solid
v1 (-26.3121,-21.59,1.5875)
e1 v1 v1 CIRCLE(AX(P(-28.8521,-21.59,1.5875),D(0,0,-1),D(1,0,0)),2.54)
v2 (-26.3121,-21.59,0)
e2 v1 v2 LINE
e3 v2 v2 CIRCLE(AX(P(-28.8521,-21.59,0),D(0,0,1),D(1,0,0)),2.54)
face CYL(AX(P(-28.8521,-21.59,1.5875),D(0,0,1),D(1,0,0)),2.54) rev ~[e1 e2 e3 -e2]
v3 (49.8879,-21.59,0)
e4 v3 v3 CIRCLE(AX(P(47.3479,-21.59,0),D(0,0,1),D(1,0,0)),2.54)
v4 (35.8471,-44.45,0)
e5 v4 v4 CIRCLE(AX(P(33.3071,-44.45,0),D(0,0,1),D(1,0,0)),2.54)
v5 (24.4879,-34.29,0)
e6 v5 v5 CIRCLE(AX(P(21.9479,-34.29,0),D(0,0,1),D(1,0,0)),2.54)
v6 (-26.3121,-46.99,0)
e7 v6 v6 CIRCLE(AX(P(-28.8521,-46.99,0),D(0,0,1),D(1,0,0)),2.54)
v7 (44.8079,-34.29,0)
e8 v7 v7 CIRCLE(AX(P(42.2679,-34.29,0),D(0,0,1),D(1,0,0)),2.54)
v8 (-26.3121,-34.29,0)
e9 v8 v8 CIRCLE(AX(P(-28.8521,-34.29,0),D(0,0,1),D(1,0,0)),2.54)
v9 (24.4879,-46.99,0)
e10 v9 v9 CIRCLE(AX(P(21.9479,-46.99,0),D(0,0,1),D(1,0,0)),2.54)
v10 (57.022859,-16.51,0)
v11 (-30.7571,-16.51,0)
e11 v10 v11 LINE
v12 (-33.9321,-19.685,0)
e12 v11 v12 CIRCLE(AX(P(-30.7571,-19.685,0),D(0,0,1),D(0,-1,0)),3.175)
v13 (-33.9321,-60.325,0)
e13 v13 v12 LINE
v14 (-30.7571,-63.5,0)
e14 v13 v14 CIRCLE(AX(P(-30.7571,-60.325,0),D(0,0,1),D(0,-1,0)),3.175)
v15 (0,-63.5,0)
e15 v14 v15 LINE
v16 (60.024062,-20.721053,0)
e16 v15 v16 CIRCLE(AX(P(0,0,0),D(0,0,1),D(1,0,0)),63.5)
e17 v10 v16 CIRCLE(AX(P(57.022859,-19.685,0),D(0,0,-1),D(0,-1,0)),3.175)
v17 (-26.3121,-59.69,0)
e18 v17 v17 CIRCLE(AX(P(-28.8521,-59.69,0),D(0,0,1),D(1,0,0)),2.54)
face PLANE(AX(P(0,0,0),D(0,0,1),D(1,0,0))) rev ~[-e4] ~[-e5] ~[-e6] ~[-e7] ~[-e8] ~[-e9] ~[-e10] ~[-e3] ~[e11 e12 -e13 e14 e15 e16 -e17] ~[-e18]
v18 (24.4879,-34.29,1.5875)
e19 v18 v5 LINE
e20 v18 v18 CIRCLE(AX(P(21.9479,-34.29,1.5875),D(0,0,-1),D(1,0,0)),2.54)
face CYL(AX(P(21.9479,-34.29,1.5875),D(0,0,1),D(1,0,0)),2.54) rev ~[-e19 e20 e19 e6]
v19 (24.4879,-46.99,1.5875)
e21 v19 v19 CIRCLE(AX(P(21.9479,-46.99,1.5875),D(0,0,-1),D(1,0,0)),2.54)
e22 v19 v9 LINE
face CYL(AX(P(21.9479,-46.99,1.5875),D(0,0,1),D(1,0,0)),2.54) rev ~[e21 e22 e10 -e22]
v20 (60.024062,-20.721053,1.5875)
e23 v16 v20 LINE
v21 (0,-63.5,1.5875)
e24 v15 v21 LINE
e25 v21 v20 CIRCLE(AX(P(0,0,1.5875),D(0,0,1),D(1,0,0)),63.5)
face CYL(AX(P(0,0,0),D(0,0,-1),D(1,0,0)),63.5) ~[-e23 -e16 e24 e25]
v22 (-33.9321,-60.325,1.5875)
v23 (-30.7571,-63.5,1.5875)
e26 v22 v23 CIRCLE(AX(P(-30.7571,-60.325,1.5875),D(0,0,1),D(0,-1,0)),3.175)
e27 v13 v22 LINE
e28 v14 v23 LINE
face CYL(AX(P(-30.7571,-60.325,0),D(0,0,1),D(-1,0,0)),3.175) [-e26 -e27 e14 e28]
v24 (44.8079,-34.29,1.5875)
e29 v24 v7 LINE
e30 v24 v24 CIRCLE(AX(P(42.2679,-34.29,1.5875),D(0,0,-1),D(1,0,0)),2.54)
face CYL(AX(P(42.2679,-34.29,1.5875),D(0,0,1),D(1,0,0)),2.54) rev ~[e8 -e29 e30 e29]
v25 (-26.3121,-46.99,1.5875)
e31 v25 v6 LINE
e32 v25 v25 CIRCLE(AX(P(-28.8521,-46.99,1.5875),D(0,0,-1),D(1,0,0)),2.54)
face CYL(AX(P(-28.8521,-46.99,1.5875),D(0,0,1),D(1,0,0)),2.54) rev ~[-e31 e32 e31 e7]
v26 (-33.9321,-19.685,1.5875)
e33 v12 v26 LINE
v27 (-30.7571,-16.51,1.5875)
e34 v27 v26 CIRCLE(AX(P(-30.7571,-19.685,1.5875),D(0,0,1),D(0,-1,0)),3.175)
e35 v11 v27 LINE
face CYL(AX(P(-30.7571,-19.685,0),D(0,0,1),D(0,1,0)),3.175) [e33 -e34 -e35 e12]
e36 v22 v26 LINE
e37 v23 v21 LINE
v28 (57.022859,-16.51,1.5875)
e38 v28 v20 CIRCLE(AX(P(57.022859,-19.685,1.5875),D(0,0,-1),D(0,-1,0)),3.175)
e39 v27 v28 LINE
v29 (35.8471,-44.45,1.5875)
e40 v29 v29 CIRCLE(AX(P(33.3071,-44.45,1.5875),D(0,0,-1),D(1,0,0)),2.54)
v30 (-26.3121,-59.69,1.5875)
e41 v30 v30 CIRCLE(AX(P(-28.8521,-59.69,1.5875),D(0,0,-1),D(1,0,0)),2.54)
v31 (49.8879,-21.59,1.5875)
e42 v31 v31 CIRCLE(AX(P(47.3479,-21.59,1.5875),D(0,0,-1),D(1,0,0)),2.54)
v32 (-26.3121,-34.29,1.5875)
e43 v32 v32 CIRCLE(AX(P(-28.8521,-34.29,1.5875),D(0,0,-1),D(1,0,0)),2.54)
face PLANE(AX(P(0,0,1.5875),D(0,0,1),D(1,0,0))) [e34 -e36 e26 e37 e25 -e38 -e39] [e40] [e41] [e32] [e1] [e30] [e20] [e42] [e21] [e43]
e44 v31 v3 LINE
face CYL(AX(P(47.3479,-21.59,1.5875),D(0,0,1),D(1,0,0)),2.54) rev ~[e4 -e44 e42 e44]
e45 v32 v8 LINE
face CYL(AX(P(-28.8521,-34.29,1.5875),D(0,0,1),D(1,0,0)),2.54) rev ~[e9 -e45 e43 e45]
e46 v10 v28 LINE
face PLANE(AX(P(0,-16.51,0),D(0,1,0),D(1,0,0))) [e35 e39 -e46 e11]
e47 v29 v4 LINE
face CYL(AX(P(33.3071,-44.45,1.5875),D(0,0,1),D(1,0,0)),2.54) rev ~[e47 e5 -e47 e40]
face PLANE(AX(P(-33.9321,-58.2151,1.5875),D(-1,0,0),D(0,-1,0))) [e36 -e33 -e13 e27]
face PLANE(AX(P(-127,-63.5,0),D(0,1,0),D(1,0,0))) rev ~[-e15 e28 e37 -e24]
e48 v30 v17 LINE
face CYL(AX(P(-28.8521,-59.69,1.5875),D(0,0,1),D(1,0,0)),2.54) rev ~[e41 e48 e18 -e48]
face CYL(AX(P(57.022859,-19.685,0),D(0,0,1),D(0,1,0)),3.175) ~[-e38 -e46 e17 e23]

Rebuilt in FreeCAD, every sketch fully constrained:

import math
import FreeCAD as App
import Part
import Sketcher

V = App.Vector
Q = App.Units.Quantity


def edges_at(feature, points):
    """Names of the edges that pass closest to the given points."""
    edges = feature.Shape.Edges
    near = lambda p: min(range(len(edges)), key=lambda i: edges[i].distToShape(Part.Vertex(*p))[0])
    return sorted({f"Edge{near(p) + 1}" for p in points})


def add_polygon(sketch, points):
    """Adds a closed chain of lines whose ends are joined by coincident constraints."""
    first, n = sketch.GeometryCount, len(points)
    for a, b in zip(points, points[1:] + points[:1]):
        sketch.addGeometry(Part.LineSegment(App.Vector(*a, 0), App.Vector(*b, 0)), False)
    for i in range(n):
        sketch.addConstraint(Sketcher.Constraint("Coincident", first + i, 2, first + (i + 1) % n, 1))

doc = App.newDocument("Part")
params = doc.addObject("Spreadsheet::Sheet", "Params")
for row, (alias, value) in enumerate([
    ("sketch1_radius", "2.5 in"),
    ("sketch1_width", "5 in"),
    ("pad1_length", "0.0625 in"),
    ("pocket1_length", "0.0625 in"),
    ("fillet_radius", "0.125 in"),
    ("fillet2_radius", "0.125 in"),
    ("pocket2_length", "0.0625 in"),
    ("sketch4_diameter", "0.2 in"),
    ("pocket3_length", "0.2 in"),
    ("fillet3_radius", "0.125 in"),
], start=1):
    params.set(f"A{row}", alias)
    params.set(f"B{row}", "=" + value)
    params.setAlias(f"B{row}", alias)

body = doc.addObject("PartDesign::Body", "Body")

# Sketch on XY plane
sketch1 = body.newObject("Sketcher::SketchObject", "Sketch")
sketch1.AttachmentSupport = (doc.getObject("XY_Plane"), [""])
sketch1.MapMode = "FlatFace"
sketch1.addGeometry(Part.LineSegment(V(61, -17, 0), V(-127, -17, 0)), False)
sketch1.addGeometry(Part.LineSegment(V(-127, -17, 0), V(-127, -64, 0)), False)
sketch1.addGeometry(Part.LineSegment(V(-127, -64, 0), V(0, -64, 0)), False)
sketch1.addGeometry(Part.ArcOfCircle(Part.Circle(V(0, 0, 0), V(0, 0, 1), 64), math.radians(-90), math.radians(-15)), False)
sketch1.addConstraint(Sketcher.Constraint("Coincident", 0, 2, 1, 1))
sketch1.addConstraint(Sketcher.Constraint("Coincident", 1, 2, 2, 1))
sketch1.addConstraint(Sketcher.Constraint("Tangent", 2, 2, 3, 1))
sketch1.addConstraint(Sketcher.Constraint("Coincident", 3, 2, 0, 1))
sketch1.addConstraint(Sketcher.Constraint("Horizontal", 0))
sketch1.addConstraint(Sketcher.Constraint("Vertical", 1))
sketch1.addConstraint(Sketcher.Constraint("Horizontal", 2))
sketch1.addConstraint(Sketcher.Constraint("Coincident", 3, 3, -1, 1))
sketch1.addConstraint(Sketcher.Constraint("Radius", 3, Q("2.5 in")))
sketch1.addConstraint(Sketcher.Constraint("DistanceX", 2, 1, 2, 2, Q("5 in")))
sketch1.addConstraint(Sketcher.Constraint("DistanceY", 0, 2, -1, 1, Q("0.65 in")))
sketch1.setExpression("Constraints[8]", "Params.sketch1_radius")
sketch1.setExpression("Constraints[9]", "Params.sketch1_width")
pad1 = body.newObject("PartDesign::Pad", "Pad")
pad1.Profile = sketch1
pad1.setExpression("Length", "Params.pad1_length")

# Sketch on XY plane
sketch2 = body.newObject("Sketcher::SketchObject", "Sketch001")
sketch2.AttachmentSupport = (doc.getObject("XY_Plane"), [""])
sketch2.MapMode = "FlatFace"
sketch2.AttachmentOffset = App.Placement(V(0, 0, 0.0625 * 25.4), App.Rotation())
add_polygon(sketch2, [(-59, -68), (-59, -12), (-136, -12), (-136, -68)])  # lines 0-3
sketch2.addConstraint(Sketcher.Constraint("Vertical", 0))
sketch2.addConstraint(Sketcher.Constraint("Horizontal", 1))
sketch2.addConstraint(Sketcher.Constraint("Vertical", 2))
sketch2.addConstraint(Sketcher.Constraint("Horizontal", 3))
sketch2.addConstraint(Sketcher.Constraint("DistanceY", 0, 1, 0, 2, Q("2.2111 in")))
sketch2.addConstraint(Sketcher.Constraint("DistanceX", 1, 2, 1, 1, Q("77.0467 mm")))
sketch2.addConstraint(Sketcher.Constraint("DistanceX", 0, 2, -1, 1, Q("59.334 mm")))
sketch2.addConstraint(Sketcher.Constraint("DistanceY", 0, 2, -1, 1, Q("11.9346 mm")))
pocket1 = body.newObject("PartDesign::Pocket", "Pocket")
pocket1.Profile = sketch2
pocket1.setExpression("Length", "Params.pocket1_length")
doc.recompute()

fillet = body.newObject("PartDesign::Fillet", "Fillet")
fillet.Base = (pocket1, edges_at(pocket1, [(61.316, -16.51, 0.794)]))
fillet.setExpression("Radius", "Params.fillet_radius")
doc.recompute()

fillet2 = body.newObject("PartDesign::Fillet", "Fillet001")
fillet2.Base = (fillet, edges_at(fillet, [(-59.334, -16.51, 0.794)]))
fillet2.setExpression("Radius", "Params.fillet2_radius")

# Sketch on XY plane
sketch3 = body.newObject("Sketcher::SketchObject", "Sketch002")
sketch3.AttachmentSupport = (doc.getObject("XY_Plane"), [""])
sketch3.MapMode = "FlatFace"
sketch3.AttachmentOffset = App.Placement(V(0, 0, 0.0625 * 25.4), App.Rotation())
add_polygon(sketch3, [(-34, -67), (-34, -13), (-59, -13), (-59, -67)])  # lines 0-3
sketch3.addConstraint(Sketcher.Constraint("Vertical", 0))
sketch3.addConstraint(Sketcher.Constraint("Horizontal", 1))
sketch3.addConstraint(Sketcher.Constraint("Vertical", 2))
sketch3.addConstraint(Sketcher.Constraint("Horizontal", 3))
sketch3.addConstraint(Sketcher.Constraint("DistanceX", 1, 2, 1, 1, Q("25.4018 mm")))
sketch3.addConstraint(Sketcher.Constraint("DistanceY", 0, 1, 0, 2, Q("53.996 mm")))
sketch3.addConstraint(Sketcher.Constraint("DistanceX", 0, 2, -1, 1, Q("1.3359 in")))
sketch3.addConstraint(Sketcher.Constraint("DistanceY", 2, 2, -1, 1, Q("2.6503 in")))
pocket2 = body.newObject("PartDesign::Pocket", "Pocket001")
pocket2.Profile = sketch3
pocket2.setExpression("Length", "Params.pocket2_length")

# Sketch on XY plane
sketch4 = body.newObject("Sketcher::SketchObject", "Sketch003")
sketch4.AttachmentSupport = (doc.getObject("XY_Plane"), [""])
sketch4.MapMode = "FlatFace"
sketch4.AttachmentOffset = App.Placement(V(0, 0, 0.0625 * 25.4), App.Rotation())
sketch4.addGeometry(Part.Circle(V(47.3, -21.6, 0), V(0, 0, 1), 2.5), False)
sketch4.addGeometry(Part.Circle(V(-28.9, -59.7, 0), V(0, 0, 1), 2.5), False)
sketch4.addGeometry(Part.Circle(V(-28.9, -47, 0), V(0, 0, 1), 2.5), False)
sketch4.addGeometry(Part.Circle(V(-28.9, -34.3, 0), V(0, 0, 1), 2.5), False)
sketch4.addGeometry(Part.Circle(V(-28.9, -21.6, 0), V(0, 0, 1), 2.5), False)
sketch4.addGeometry(Part.Circle(V(21.9, -34.3, 0), V(0, 0, 1), 2.5), False)
sketch4.addGeometry(Part.Circle(V(21.9, -47, 0), V(0, 0, 1), 2.5), False)
sketch4.addGeometry(Part.Circle(V(42.3, -34.3, 0), V(0, 0, 1), 2.5), False)
sketch4.addGeometry(Part.Circle(V(33.3, -44.5, 0), V(0, 0, 1), 2.5), False)
sketch4.addConstraint(Sketcher.Constraint("Equal", 0, 1))
sketch4.addConstraint(Sketcher.Constraint("Equal", 1, 2))
sketch4.addConstraint(Sketcher.Constraint("Equal", 2, 3))
sketch4.addConstraint(Sketcher.Constraint("Equal", 3, 4))
sketch4.addConstraint(Sketcher.Constraint("Equal", 4, 5))
sketch4.addConstraint(Sketcher.Constraint("Equal", 5, 6))
sketch4.addConstraint(Sketcher.Constraint("Equal", 6, 7))
sketch4.addConstraint(Sketcher.Constraint("Equal", 7, 8))
sketch4.addConstraint(Sketcher.Constraint("Horizontal", 0, 3, 4, 3))
sketch4.addConstraint(Sketcher.Constraint("Horizontal", 3, 3, 5, 3))
sketch4.addConstraint(Sketcher.Constraint("Horizontal", 2, 3, 6, 3))
sketch4.addConstraint(Sketcher.Constraint("Horizontal", 5, 3, 7, 3))
sketch4.addConstraint(Sketcher.Constraint("Vertical", 1, 3, 2, 3))
sketch4.addConstraint(Sketcher.Constraint("Vertical", 2, 3, 3, 3))
sketch4.addConstraint(Sketcher.Constraint("Vertical", 3, 3, 4, 3))
sketch4.addConstraint(Sketcher.Constraint("Vertical", 5, 3, 6, 3))
sketch4.addConstraint(Sketcher.Constraint("Diameter", 0, Q("0.2 in")))
sketch4.addConstraint(Sketcher.Constraint("DistanceY", 2, 3, 0, 3, Q("1 in")))
sketch4.addConstraint(Sketcher.Constraint("DistanceY", 1, 3, 3, 3, Q("1 in")))
sketch4.addConstraint(Sketcher.Constraint("DistanceX", 5, 3, 0, 3, Q("1 in")))
sketch4.addConstraint(Sketcher.Constraint("DistanceY", 1, 3, 2, 3, Q("0.5 in")))
sketch4.addConstraint(Sketcher.Constraint("DistanceX", 7, 3, 0, 3, Q("0.2 in")))
sketch4.addConstraint(Sketcher.Constraint("DistanceX", 1, 3, 0, 3, Q("3 in")))
sketch4.addConstraint(Sketcher.Constraint("DistanceY", 6, 3, 8, 3, Q("0.1 in")))
sketch4.addConstraint(Sketcher.Constraint("DistanceY", 0, 3, -1, 1, Q("0.85 in")))
sketch4.addConstraint(Sketcher.Constraint("DistanceX", -1, 1, 0, 3, Q("1.8641 in")))
sketch4.addConstraint(Sketcher.Constraint("DistanceX", -1, 1, 8, 3, Q("1.3113 in")))
sketch4.setExpression("Constraints[16]", "Params.sketch4_diameter")
pocket3 = body.newObject("PartDesign::Pocket", "Pocket002")
pocket3.Profile = sketch4
pocket3.setExpression("Length", "Params.pocket3_length")
doc.recompute()

fillet3 = body.newObject("PartDesign::Fillet", "Fillet002")
fillet3.Base = (pocket3, edges_at(pocket3, [(-33.932, -16.51, 0.794), (-33.932, -63.5, 0.794)]))
fillet3.setExpression("Radius", "Params.fillet3_radius")

doc.recompute()
